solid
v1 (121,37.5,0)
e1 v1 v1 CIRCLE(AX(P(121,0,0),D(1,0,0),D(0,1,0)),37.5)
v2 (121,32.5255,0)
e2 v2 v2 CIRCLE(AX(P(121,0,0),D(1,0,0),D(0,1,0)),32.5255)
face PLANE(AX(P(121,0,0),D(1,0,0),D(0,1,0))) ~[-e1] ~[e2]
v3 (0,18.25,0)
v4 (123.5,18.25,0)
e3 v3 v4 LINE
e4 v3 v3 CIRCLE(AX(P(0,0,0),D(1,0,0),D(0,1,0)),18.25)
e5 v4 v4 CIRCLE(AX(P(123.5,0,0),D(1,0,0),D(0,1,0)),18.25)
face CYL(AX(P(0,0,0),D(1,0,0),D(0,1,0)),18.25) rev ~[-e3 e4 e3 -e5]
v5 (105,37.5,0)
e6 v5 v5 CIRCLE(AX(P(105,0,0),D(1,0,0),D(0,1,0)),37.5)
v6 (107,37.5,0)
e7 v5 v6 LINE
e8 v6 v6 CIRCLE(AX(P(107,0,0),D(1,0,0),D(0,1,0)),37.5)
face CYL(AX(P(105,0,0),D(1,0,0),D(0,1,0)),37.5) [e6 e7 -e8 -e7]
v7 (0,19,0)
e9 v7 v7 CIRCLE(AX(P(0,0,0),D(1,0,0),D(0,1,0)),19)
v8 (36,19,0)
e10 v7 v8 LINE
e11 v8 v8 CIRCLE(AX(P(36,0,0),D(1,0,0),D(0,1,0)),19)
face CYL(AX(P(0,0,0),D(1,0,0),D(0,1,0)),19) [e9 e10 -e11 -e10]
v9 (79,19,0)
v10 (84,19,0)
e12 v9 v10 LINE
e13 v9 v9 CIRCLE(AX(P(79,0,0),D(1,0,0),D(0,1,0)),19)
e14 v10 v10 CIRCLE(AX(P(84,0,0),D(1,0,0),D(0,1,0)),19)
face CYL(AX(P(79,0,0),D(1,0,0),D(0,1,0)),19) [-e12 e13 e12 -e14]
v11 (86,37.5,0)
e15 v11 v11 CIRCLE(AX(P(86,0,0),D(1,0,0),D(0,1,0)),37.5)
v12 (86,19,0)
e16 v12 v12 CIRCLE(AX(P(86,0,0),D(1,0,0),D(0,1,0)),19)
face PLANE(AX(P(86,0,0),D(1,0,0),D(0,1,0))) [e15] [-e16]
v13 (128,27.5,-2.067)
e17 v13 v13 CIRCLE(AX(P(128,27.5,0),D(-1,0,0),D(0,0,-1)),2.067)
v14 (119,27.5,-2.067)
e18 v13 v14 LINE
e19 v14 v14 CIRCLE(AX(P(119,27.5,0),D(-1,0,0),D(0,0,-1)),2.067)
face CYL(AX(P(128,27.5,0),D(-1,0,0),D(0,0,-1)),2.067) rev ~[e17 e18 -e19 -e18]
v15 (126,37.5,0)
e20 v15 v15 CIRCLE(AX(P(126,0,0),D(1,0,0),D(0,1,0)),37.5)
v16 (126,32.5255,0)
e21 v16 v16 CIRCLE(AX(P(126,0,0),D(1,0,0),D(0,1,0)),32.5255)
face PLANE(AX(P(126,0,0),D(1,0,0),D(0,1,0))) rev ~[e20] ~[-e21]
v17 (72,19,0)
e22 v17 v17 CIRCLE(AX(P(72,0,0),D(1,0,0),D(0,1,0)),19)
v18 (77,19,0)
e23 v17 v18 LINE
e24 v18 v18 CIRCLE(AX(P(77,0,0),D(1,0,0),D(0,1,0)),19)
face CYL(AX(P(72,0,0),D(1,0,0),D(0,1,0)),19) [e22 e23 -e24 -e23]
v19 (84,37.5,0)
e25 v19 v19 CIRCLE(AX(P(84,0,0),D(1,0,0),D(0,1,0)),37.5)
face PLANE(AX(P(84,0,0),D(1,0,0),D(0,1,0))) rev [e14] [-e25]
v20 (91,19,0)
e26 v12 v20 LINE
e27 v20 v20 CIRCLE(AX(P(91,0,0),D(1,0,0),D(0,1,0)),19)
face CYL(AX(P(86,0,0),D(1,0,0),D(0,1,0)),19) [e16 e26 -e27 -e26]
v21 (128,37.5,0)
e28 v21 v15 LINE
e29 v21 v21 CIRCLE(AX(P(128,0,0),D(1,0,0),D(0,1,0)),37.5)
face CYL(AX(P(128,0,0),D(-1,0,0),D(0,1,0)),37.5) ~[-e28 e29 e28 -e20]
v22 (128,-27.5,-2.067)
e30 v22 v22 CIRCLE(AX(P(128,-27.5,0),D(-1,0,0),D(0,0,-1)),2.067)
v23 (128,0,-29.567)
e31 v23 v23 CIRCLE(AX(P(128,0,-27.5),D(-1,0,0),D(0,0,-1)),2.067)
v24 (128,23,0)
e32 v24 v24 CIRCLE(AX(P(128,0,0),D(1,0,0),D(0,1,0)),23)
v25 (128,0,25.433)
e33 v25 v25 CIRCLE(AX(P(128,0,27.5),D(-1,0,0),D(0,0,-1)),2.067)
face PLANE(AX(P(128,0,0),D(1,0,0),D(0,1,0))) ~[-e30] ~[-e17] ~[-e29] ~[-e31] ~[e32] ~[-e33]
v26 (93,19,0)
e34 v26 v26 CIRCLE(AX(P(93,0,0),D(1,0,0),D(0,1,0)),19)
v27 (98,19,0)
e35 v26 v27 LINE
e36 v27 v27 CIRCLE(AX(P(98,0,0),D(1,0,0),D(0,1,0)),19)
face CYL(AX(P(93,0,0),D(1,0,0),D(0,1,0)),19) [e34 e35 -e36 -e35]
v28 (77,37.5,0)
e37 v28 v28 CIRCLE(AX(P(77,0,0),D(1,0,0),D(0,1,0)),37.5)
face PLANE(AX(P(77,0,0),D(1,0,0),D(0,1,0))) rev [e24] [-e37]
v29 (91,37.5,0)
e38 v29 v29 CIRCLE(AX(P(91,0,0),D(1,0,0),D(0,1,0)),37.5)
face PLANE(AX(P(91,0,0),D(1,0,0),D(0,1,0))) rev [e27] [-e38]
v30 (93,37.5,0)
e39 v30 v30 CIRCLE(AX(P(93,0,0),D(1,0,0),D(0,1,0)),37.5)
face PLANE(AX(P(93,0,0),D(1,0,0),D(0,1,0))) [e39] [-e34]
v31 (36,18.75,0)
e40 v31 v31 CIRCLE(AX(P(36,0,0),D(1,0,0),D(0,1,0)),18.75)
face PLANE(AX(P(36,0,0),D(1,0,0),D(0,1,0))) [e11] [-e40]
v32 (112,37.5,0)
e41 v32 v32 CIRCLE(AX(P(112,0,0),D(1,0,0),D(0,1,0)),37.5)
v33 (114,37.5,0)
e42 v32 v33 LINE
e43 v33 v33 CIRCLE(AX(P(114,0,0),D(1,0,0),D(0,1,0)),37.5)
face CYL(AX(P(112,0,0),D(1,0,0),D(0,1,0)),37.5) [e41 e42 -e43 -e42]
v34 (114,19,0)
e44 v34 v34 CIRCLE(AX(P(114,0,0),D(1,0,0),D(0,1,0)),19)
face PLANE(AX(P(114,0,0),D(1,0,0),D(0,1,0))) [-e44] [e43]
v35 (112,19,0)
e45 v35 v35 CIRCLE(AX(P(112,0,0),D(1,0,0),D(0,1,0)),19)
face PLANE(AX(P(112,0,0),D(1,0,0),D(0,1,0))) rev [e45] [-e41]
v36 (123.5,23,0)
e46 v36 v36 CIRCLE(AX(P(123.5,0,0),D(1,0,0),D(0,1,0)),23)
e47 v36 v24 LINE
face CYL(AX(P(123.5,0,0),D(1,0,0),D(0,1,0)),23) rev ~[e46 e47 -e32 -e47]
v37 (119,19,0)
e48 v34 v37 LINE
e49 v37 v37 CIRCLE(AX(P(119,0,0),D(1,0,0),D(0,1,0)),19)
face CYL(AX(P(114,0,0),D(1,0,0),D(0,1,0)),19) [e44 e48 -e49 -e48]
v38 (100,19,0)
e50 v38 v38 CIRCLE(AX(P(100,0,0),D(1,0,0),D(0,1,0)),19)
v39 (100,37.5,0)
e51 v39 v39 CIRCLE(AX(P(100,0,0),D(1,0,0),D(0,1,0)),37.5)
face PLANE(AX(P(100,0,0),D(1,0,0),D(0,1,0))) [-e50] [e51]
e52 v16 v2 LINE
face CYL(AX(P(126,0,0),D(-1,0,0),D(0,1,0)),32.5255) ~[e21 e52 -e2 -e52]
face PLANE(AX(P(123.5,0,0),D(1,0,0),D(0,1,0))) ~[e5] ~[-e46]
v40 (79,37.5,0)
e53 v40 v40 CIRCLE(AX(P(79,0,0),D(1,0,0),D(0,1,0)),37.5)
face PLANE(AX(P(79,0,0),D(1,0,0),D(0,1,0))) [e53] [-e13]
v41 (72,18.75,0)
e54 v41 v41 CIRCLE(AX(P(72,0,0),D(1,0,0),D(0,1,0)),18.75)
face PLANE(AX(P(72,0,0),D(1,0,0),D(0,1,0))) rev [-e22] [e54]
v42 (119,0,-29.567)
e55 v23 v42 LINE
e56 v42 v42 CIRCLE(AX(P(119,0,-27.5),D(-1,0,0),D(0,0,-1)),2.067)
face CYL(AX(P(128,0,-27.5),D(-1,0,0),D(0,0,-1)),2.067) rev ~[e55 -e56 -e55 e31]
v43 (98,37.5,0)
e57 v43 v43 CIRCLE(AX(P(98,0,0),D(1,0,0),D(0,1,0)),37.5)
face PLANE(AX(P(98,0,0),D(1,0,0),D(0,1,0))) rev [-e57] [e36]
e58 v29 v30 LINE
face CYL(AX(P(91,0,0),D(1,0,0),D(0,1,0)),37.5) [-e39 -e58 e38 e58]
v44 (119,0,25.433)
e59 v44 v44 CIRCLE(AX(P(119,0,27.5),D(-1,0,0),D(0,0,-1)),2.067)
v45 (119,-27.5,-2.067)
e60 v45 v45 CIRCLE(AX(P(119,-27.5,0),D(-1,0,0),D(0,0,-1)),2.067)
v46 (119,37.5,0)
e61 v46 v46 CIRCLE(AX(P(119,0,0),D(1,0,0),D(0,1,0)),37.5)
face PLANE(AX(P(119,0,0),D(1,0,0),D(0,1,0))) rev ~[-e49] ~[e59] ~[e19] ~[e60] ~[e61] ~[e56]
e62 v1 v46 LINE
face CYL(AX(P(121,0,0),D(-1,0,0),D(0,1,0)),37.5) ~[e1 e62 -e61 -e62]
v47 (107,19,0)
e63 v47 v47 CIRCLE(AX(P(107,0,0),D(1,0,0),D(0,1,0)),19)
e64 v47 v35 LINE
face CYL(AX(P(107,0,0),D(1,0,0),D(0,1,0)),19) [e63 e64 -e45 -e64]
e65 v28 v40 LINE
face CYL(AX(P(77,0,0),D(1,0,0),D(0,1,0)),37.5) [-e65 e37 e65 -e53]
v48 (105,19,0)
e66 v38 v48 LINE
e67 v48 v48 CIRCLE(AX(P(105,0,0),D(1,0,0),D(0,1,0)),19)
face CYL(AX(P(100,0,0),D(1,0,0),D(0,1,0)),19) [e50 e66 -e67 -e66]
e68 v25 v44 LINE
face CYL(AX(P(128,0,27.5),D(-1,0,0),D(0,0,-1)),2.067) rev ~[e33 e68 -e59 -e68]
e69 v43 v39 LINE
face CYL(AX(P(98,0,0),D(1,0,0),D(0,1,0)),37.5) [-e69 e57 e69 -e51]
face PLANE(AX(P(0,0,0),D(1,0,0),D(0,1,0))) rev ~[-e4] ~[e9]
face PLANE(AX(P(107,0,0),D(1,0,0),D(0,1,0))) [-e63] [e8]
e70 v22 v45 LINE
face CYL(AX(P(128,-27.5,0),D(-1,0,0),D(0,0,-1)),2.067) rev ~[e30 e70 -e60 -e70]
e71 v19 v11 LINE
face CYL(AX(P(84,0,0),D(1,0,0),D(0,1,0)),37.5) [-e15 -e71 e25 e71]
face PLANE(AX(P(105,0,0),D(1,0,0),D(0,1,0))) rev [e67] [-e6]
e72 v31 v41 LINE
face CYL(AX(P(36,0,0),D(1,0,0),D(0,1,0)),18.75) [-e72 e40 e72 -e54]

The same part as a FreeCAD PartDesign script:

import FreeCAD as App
import Part
import Sketcher

V = App.Vector
Q = App.Units.Quantity

doc = App.newDocument("Part")
params = doc.addObject("Spreadsheet::Sheet", "Params")
for row, (alias, value) in enumerate([
    ("sketch1_width", "36 mm"),
    ("sketch1_width2", "2 mm"),
    ("sketch1_width3", "123.5 mm"),
    ("sketch1_height", "14.5 mm"),
    ("sketch1_height2", "18.5 mm"),
    ("revolution_angle", "360 deg"),
    ("hole_diameter", "4.134 mm"),
    ("hole_depth", "9 mm"),
], start=1):
    params.set(f"A{row}", alias)
    params.set(f"B{row}", "=" + value)
    params.setAlias(f"B{row}", alias)

body = doc.addObject("PartDesign::Body", "Body")

# Sketch on XY plane
sketch1 = doc.addObject("Sketcher::SketchObject", "Sketch")
body.addObject(sketch1)
sketch1.AttachmentSupport = (doc.XY_Plane, [""])
sketch1.MapMode = "FlatFace"
sketch1.addGeometry([
    Part.LineSegment(V(36, 19, 0), V(0, 19, 0)),  # 0
    Part.LineSegment(V(0, 19, 0), V(0, 18.25, 0)),  # 1
    Part.LineSegment(V(0, 18.25, 0), V(123.5, 18.25, 0)),  # 2
    Part.LineSegment(V(123.5, 18.25, 0), V(123.5, 23, 0)),  # 3
    Part.LineSegment(V(123.5, 23, 0), V(128, 23, 0)),  # 4
    Part.LineSegment(V(128, 23, 0), V(128, 37.5, 0)),  # 5
    Part.LineSegment(V(128, 37.5, 0), V(126, 37.5, 0)),  # 6
    Part.LineSegment(V(126, 37.5, 0), V(126, 32.5255, 0)),  # 7
    Part.LineSegment(V(126, 32.5255, 0), V(121, 32.5255, 0)),  # 8
    Part.LineSegment(V(121, 32.5255, 0), V(121, 37.5, 0)),  # 9
    Part.LineSegment(V(121, 37.5, 0), V(119, 37.5, 0)),  # 10
    Part.LineSegment(V(119, 37.5, 0), V(119, 19, 0)),  # 11
    Part.LineSegment(V(119, 19, 0), V(114, 19, 0)),  # 12
    Part.LineSegment(V(114, 19, 0), V(114, 37.5, 0)),  # 13
    Part.LineSegment(V(114, 37.5, 0), V(112, 37.5, 0)),  # 14
    Part.LineSegment(V(112, 37.5, 0), V(112, 19, 0)),  # 15
    Part.LineSegment(V(112, 19, 0), V(107, 19, 0)),  # 16
    Part.LineSegment(V(107, 19, 0), V(107, 37.5, 0)),  # 17
    Part.LineSegment(V(107, 37.5, 0), V(105, 37.5, 0)),  # 18
    Part.LineSegment(V(105, 37.5, 0), V(105, 19, 0)),  # 19
    Part.LineSegment(V(105, 19, 0), V(100, 19, 0)),  # 20
    Part.LineSegment(V(100, 19, 0), V(100, 37.5, 0)),  # 21
    Part.LineSegment(V(100, 37.5, 0), V(98, 37.5, 0)),  # 22
    Part.LineSegment(V(98, 37.5, 0), V(98, 19, 0)),  # 23
    Part.LineSegment(V(98, 19, 0), V(93, 19, 0)),  # 24
    Part.LineSegment(V(93, 19, 0), V(93, 37.5, 0)),  # 25
    Part.LineSegment(V(93, 37.5, 0), V(91, 37.5, 0)),  # 26
    Part.LineSegment(V(91, 37.5, 0), V(91, 19, 0)),  # 27
    Part.LineSegment(V(91, 19, 0), V(86, 19, 0)),  # 28
    Part.LineSegment(V(86, 19, 0), V(86, 37.5, 0)),  # 29
    Part.LineSegment(V(86, 37.5, 0), V(84, 37.5, 0)),  # 30
    Part.LineSegment(V(84, 37.5, 0), V(84, 19, 0)),  # 31
    Part.LineSegment(V(84, 19, 0), V(79, 19, 0)),  # 32
    Part.LineSegment(V(79, 19, 0), V(79, 37.5, 0)),  # 33
    Part.LineSegment(V(79, 37.5, 0), V(77, 37.5, 0)),  # 34
    Part.LineSegment(V(77, 37.5, 0), V(77, 19, 0)),  # 35
    Part.LineSegment(V(77, 19, 0), V(72, 19, 0)),  # 36
    Part.LineSegment(V(72, 19, 0), V(72, 18.75, 0)),  # 37
    Part.LineSegment(V(72, 18.75, 0), V(36, 18.75, 0)),  # 38
    Part.LineSegment(V(36, 18.75, 0), V(36, 19, 0)),  # 39
], False)
sketch1.addConstraint([
    Sketcher.Constraint("Coincident", 0, 2, 1, 1),
    Sketcher.Constraint("Coincident", 1, 2, 2, 1),
    Sketcher.Constraint("Coincident", 2, 2, 3, 1),
    Sketcher.Constraint("Coincident", 3, 2, 4, 1),
    Sketcher.Constraint("Coincident", 4, 2, 5, 1),
    Sketcher.Constraint("Coincident", 5, 2, 6, 1),
    Sketcher.Constraint("Coincident", 6, 2, 7, 1),
    Sketcher.Constraint("Coincident", 7, 2, 8, 1),
    Sketcher.Constraint("Coincident", 8, 2, 9, 1),
    Sketcher.Constraint("Coincident", 9, 2, 10, 1),
    Sketcher.Constraint("Coincident", 10, 2, 11, 1),
    Sketcher.Constraint("Coincident", 11, 2, 12, 1),
    Sketcher.Constraint("Coincident", 12, 2, 13, 1),
    Sketcher.Constraint("Coincident", 13, 2, 14, 1),
    Sketcher.Constraint("Coincident", 14, 2, 15, 1),
    Sketcher.Constraint("Coincident", 15, 2, 16, 1),
    Sketcher.Constraint("Coincident", 16, 2, 17, 1),
    Sketcher.Constraint("Coincident", 17, 2, 18, 1),
    Sketcher.Constraint("Coincident", 18, 2, 19, 1),
    Sketcher.Constraint("Coincident", 19, 2, 20, 1),
    Sketcher.Constraint("Coincident", 20, 2, 21, 1),
    Sketcher.Constraint("Coincident", 21, 2, 22, 1),
    Sketcher.Constraint("Coincident", 22, 2, 23, 1),
    Sketcher.Constraint("Coincident", 23, 2, 24, 1),
    Sketcher.Constraint("Coincident", 24, 2, 25, 1),
    Sketcher.Constraint("Coincident", 25, 2, 26, 1),
    Sketcher.Constraint("Coincident", 26, 2, 27, 1),
    Sketcher.Constraint("Coincident", 27, 2, 28, 1),
    Sketcher.Constraint("Coincident", 28, 2, 29, 1),
    Sketcher.Constraint("Coincident", 29, 2, 30, 1),
    Sketcher.Constraint("Coincident", 30, 2, 31, 1),
    Sketcher.Constraint("Coincident", 31, 2, 32, 1),
    Sketcher.Constraint("Coincident", 32, 2, 33, 1),
    Sketcher.Constraint("Coincident", 33, 2, 34, 1),
    Sketcher.Constraint("Coincident", 34, 2, 35, 1),
    Sketcher.Constraint("Coincident", 35, 2, 36, 1),
    Sketcher.Constraint("Coincident", 36, 2, 37, 1),
    Sketcher.Constraint("Coincident", 37, 2, 38, 1),
    Sketcher.Constraint("Coincident", 38, 2, 39, 1),
    Sketcher.Constraint("Coincident", 39, 2, 0, 1),
    Sketcher.Constraint("Horizontal", 0),
    Sketcher.Constraint("Vertical", 1),
    Sketcher.Constraint("Horizontal", 2),
    Sketcher.Constraint("Vertical", 3),
    Sketcher.Constraint("Horizontal", 4),
    Sketcher.Constraint("Vertical", 5),
    Sketcher.Constraint("Horizontal", 6),
    Sketcher.Constraint("Vertical", 7),
    Sketcher.Constraint("Horizontal", 8),
    Sketcher.Constraint("Vertical", 9),
    Sketcher.Constraint("Horizontal", 10),
    Sketcher.Constraint("Vertical", 11),
    Sketcher.Constraint("Horizontal", 12),
    Sketcher.Constraint("Vertical", 13),
    Sketcher.Constraint("Horizontal", 14),
    Sketcher.Constraint("Vertical", 15),
    Sketcher.Constraint("Horizontal", 16),
    Sketcher.Constraint("Vertical", 17),
    Sketcher.Constraint("Horizontal", 18),
    Sketcher.Constraint("Vertical", 19),
    Sketcher.Constraint("Horizontal", 20),
    Sketcher.Constraint("Vertical", 21),
    Sketcher.Constraint("Horizontal", 22),
    Sketcher.Constraint("Vertical", 23),
    Sketcher.Constraint("Horizontal", 24),
    Sketcher.Constraint("Vertical", 25),
    Sketcher.Constraint("Horizontal", 26),
    Sketcher.Constraint("Vertical", 27),
    Sketcher.Constraint("Horizontal", 28),
    Sketcher.Constraint("Vertical", 29),
    Sketcher.Constraint("Horizontal", 30),
    Sketcher.Constraint("Vertical", 31),
    Sketcher.Constraint("Horizontal", 32),
    Sketcher.Constraint("Vertical", 33),
    Sketcher.Constraint("Horizontal", 34),
    Sketcher.Constraint("Vertical", 35),
    Sketcher.Constraint("Horizontal", 36),
    Sketcher.Constraint("Vertical", 37),
    Sketcher.Constraint("Horizontal", 38),
    Sketcher.Constraint("Vertical", 39),
    Sketcher.Constraint("PointOnObject", 0, 2, -2),
    Sketcher.Constraint("Horizontal", 6, 2, 9, 2),
    Sketcher.Constraint("Horizontal", 0, 2, 11, 2),
    Sketcher.Constraint("Horizontal", 10, 2, 13, 2),
    Sketcher.Constraint("Horizontal", 12, 2, 15, 2),
    Sketcher.Constraint("Horizontal", 14, 2, 17, 2),
    Sketcher.Constraint("Horizontal", 16, 2, 19, 2),
    Sketcher.Constraint("Horizontal", 18, 2, 21, 2),
    Sketcher.Constraint("Horizontal", 20, 2, 23, 2),
    Sketcher.Constraint("Horizontal", 22, 2, 25, 2),
    Sketcher.Constraint("Horizontal", 24, 2, 27, 2),
    Sketcher.Constraint("Horizontal", 26, 2, 29, 2),
    Sketcher.Constraint("Horizontal", 28, 2, 31, 2),
    Sketcher.Constraint("Horizontal", 30, 2, 33, 2),
    Sketcher.Constraint("Horizontal", 32, 2, 35, 2),
    Sketcher.Constraint("Equal", 6, 10),
    Sketcher.Constraint("Equal", 8, 12),
    Sketcher.Constraint("Equal", 10, 14),
    Sketcher.Constraint("Equal", 12, 16),
    Sketcher.Constraint("Equal", 14, 18),
    Sketcher.Constraint("Equal", 16, 20),
    Sketcher.Constraint("Equal", 18, 22),
    Sketcher.Constraint("Equal", 20, 24),
    Sketcher.Constraint("Equal", 22, 26),
    Sketcher.Constraint("Equal", 24, 28),
    Sketcher.Constraint("Equal", 26, 30),
    Sketcher.Constraint("Equal", 28, 32),
    Sketcher.Constraint("Equal", 30, 34),
    Sketcher.Constraint("Equal", 32, 36),
    Sketcher.Constraint("Equal", 0, 38),
    Sketcher.Constraint("DistanceX", 0, 2, 0, 1, Q("36 mm")),
    Sketcher.Constraint("DistanceX", 6, 2, 6, 1, Q("2 mm")),
    Sketcher.Constraint("DistanceX", -1, 1, 4, 2, Q("128 mm")),
    Sketcher.Constraint("DistanceY", -1, 1, 5, 2, Q("37.5 mm")),
    Sketcher.Constraint("DistanceX", 2, 1, 2, 2, Q("123.5 mm")),
    Sketcher.Constraint("DistanceY", 5, 1, 5, 2, Q("14.5 mm")),
    Sketcher.Constraint("DistanceY", 11, 2, 11, 1, Q("18.5 mm")),
    Sketcher.Constraint("DistanceY", 1, 2, 1, 1, Q("0.75 mm")),
    Sketcher.Constraint("DistanceY", 37, 2, 37, 1, Q("0.25 mm")),
    Sketcher.Constraint("DistanceY", 7, 2, 7, 1, Q("4.9745 mm")),
])
sketch1.setExpression("Constraints[110]", "Params.sketch1_width")
sketch1.setExpression("Constraints[111]", "Params.sketch1_width2")
sketch1.setExpression("Constraints[114]", "Params.sketch1_width3")
sketch1.setExpression("Constraints[115]", "Params.sketch1_height")
sketch1.setExpression("Constraints[116]", "Params.sketch1_height2")
revolution = doc.addObject("PartDesign::Revolution", "Revolution")
body.addObject(revolution)
revolution.Profile = sketch1
revolution.ReferenceAxis = (sketch1, ["H_Axis"])
revolution.setExpression("Angle", "Params.revolution_angle")

# Sketch on YZ plane
sketch2 = doc.addObject("Sketcher::SketchObject", "Sketch001")
body.addObject(sketch2)
sketch2.AttachmentSupport = (doc.YZ_Plane, [""])
sketch2.MapMode = "FlatFace"
sketch2.AttachmentOffset = App.Placement(V(0, 0, 128), App.Rotation())
sketch2.addGeometry([
    Part.Circle(V(27.5, 0, 0), V(0, 0, 1), 2.067),
    Part.Circle(V(0, -27.5, 0), V(0, 0, 1), 2.067),
    Part.Circle(V(-27.5, 0, 0), V(0, 0, 1), 2.067),
    Part.Circle(V(0, 27.5, 0), V(0, 0, 1), 2.067),
], False)
sketch2.addConstraint([
    Sketcher.Constraint("Equal", 0, 1),
    Sketcher.Constraint("Equal", 1, 2),
    Sketcher.Constraint("Equal", 2, 3),
    Sketcher.Constraint("Symmetric", 0, 3, 2, 3, -1, 1),
    Sketcher.Constraint("Symmetric", 1, 3, 3, 3, -1, 1),
    Sketcher.Constraint("PointOnObject", 0, 3, -1),
    Sketcher.Constraint("PointOnObject", 1, 3, -2),
    Sketcher.Constraint("Diameter", 0, Q("4.134 mm")),
    Sketcher.Constraint("DistanceX", 2, 3, 0, 3, Q("55 mm")),
    Sketcher.Constraint("DistanceY", 1, 3, 3, 3, Q("55 mm")),
])
doc.recompute()
hole = doc.addObject("PartDesign::Hole", "Hole")
body.addObject(hole)
hole.Profile = sketch2
hole.ThreadType = "None"
hole.setExpression("Diameter", "Params.hole_diameter")
hole.DepthType = "Dimension"
hole.setExpression("Depth", "Params.hole_depth")
hole.DrillPoint = "Flat"

doc.recompute()
